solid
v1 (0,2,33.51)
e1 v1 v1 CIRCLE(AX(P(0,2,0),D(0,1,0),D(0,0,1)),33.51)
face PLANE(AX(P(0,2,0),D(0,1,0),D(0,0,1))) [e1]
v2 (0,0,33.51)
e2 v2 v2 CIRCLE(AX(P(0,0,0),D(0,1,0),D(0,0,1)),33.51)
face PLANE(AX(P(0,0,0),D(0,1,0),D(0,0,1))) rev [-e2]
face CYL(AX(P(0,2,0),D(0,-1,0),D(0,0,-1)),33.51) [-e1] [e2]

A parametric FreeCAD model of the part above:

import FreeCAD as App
import Part
import Sketcher
from FreeCAD import Vector

doc = App.newDocument("Part")
body = doc.addObject("PartDesign::Body", "Body")

# Sketch on XZ plane
sketch1 = body.newObject("Sketcher::SketchObject", "Sketch")
sketch1.AttachmentSupport = (doc.getObject("XZ_Plane"), [""])
sketch1.MapMode = "FlatFace"
sketch1.addGeometry(Part.Circle(Vector(0, 0, 0), Vector(0, 0, 1), 34), False)
sketch1.addConstraint(Sketcher.Constraint("Coincident", 0, 3, -1, 1))
sketch1.addConstraint(Sketcher.Constraint("Diameter", 0, 67.02))
pad1 = body.newObject("PartDesign::Pad", "Pad")
pad1.Profile = sketch1
pad1.Length = 2
pad1.Reversed = True

doc.recompute()
